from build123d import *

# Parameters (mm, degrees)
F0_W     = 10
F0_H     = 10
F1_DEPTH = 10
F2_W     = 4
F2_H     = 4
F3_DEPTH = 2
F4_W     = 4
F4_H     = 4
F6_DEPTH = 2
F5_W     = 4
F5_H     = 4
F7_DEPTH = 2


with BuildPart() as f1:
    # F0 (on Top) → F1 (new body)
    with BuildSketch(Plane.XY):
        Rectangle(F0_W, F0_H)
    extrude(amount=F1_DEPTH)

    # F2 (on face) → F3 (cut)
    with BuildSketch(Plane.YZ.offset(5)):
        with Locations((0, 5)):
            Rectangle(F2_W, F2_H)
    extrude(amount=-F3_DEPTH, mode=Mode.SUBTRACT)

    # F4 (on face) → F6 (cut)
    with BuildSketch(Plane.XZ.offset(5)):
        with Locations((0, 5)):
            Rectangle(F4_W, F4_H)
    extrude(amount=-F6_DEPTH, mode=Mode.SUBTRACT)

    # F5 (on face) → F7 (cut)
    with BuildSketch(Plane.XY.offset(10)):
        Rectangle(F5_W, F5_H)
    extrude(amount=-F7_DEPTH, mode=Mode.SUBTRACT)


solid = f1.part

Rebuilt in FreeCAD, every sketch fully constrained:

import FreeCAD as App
import Part
import Sketcher
Q = App.Units.Quantity


def add_polygon(sketch, points):
    """Adds a closed chain of lines whose ends are joined by coincident constraints."""
    first, n = sketch.GeometryCount, len(points)
    for a, b in zip(points, points[1:] + points[:1]):
        sketch.addGeometry(Part.LineSegment(App.Vector(*a, 0), App.Vector(*b, 0)), False)
    for i in range(n):
        sketch.addConstraint(Sketcher.Constraint("Coincident", first + i, 2, first + (i + 1) % n, 1))

doc = App.newDocument("Part")
body = doc.addObject("PartDesign::Body", "Body")

sketch1 = body.newObject("Sketcher::SketchObject", "Sketch")
sketch1.AttachmentSupport = (doc.getObject("XY_Plane"), [""])
sketch1.MapMode = "FlatFace"
add_polygon(sketch1, [(-5, 5), (-5, -5), (5, -5), (5, 5)])
sketch1.addConstraint([
    Sketcher.Constraint("Vertical", 0),
    Sketcher.Constraint("Horizontal", 1),
    Sketcher.Constraint("Vertical", 2),
    Sketcher.Constraint("Horizontal", 3),
    Sketcher.Constraint("Symmetric", 0, 2, 2, 2, -1, 1),
    Sketcher.Constraint("Equal", 3, 0),
    Sketcher.Constraint("DistanceX", 1, 1, 1, 2, Q("10 mm")),
])
pad1 = body.newObject("PartDesign::Pad", "Pad")
pad1.Profile = sketch1
pad1.Length = 10

sketch2 = body.newObject("Sketcher::SketchObject", "Sketch001")
sketch2.AttachmentSupport = (doc.getObject("YZ_Plane"), [""])
sketch2.MapMode = "FlatFace"
sketch2.AttachmentOffset = App.Placement(App.Vector(0, 0, 5), App.Rotation())
add_polygon(sketch2, [(-2, 7), (-2, 3), (2, 3), (2, 7)])
sketch2.addConstraint([
    Sketcher.Constraint("Vertical", 0),
    Sketcher.Constraint("Horizontal", 1),
    Sketcher.Constraint("Vertical", 2),
    Sketcher.Constraint("Horizontal", 3),
    Sketcher.Constraint("Equal", 3, 0),
    Sketcher.Constraint("DistanceX", 1, 1, 1, 2, Q("4 mm")),
    Sketcher.Constraint("DistanceX", 0, 2, -1, 1, Q("2 mm")),
    Sketcher.Constraint("DistanceY", -1, 1, 0, 2, Q("3 mm")),
])
pocket1 = body.newObject("PartDesign::Pocket", "Pocket")
pocket1.Profile = sketch2
pocket1.Length = 2

sketch3 = body.newObject("Sketcher::SketchObject", "Sketch002")
sketch3.AttachmentSupport = (doc.getObject("XZ_Plane"), [""])
sketch3.MapMode = "FlatFace"
sketch3.AttachmentOffset = App.Placement(App.Vector(0, 0, 5), App.Rotation())
add_polygon(sketch3, [(-2, 7), (-2, 3), (2, 3), (2, 7)])
sketch3.addConstraint([
    Sketcher.Constraint("Vertical", 0),
    Sketcher.Constraint("Horizontal", 1),
    Sketcher.Constraint("Vertical", 2),
    Sketcher.Constraint("Horizontal", 3),
    Sketcher.Constraint("Equal", 3, 0),
    Sketcher.Constraint("DistanceX", 1, 1, 1, 2, Q("4 mm")),
    Sketcher.Constraint("DistanceX", 0, 2, -1, 1, Q("2 mm")),
    Sketcher.Constraint("DistanceY", -1, 1, 0, 2, Q("3 mm")),
])
pocket2 = body.newObject("PartDesign::Pocket", "Pocket001")
pocket2.Profile = sketch3
pocket2.Length = 2

sketch4 = body.newObject("Sketcher::SketchObject", "Sketch003")
sketch4.AttachmentSupport = (doc.getObject("XY_Plane"), [""])
sketch4.MapMode = "FlatFace"
sketch4.AttachmentOffset = App.Placement(App.Vector(0, 0, 10), App.Rotation())
add_polygon(sketch4, [(-2, 2), (-2, -2), (2, -2), (2, 2)])
sketch4.addConstraint([
    Sketcher.Constraint("Vertical", 0),
    Sketcher.Constraint("Horizontal", 1),
    Sketcher.Constraint("Vertical", 2),
    Sketcher.Constraint("Horizontal", 3),
    Sketcher.Constraint("Symmetric", 0, 2, 2, 2, -1, 1),
    Sketcher.Constraint("Equal", 3, 0),
    Sketcher.Constraint("DistanceX", 1, 1, 1, 2, Q("4 mm")),
])
pocket3 = body.newObject("PartDesign::Pocket", "Pocket002")
pocket3.Profile = sketch4
pocket3.Length = 2

doc.recompute()
